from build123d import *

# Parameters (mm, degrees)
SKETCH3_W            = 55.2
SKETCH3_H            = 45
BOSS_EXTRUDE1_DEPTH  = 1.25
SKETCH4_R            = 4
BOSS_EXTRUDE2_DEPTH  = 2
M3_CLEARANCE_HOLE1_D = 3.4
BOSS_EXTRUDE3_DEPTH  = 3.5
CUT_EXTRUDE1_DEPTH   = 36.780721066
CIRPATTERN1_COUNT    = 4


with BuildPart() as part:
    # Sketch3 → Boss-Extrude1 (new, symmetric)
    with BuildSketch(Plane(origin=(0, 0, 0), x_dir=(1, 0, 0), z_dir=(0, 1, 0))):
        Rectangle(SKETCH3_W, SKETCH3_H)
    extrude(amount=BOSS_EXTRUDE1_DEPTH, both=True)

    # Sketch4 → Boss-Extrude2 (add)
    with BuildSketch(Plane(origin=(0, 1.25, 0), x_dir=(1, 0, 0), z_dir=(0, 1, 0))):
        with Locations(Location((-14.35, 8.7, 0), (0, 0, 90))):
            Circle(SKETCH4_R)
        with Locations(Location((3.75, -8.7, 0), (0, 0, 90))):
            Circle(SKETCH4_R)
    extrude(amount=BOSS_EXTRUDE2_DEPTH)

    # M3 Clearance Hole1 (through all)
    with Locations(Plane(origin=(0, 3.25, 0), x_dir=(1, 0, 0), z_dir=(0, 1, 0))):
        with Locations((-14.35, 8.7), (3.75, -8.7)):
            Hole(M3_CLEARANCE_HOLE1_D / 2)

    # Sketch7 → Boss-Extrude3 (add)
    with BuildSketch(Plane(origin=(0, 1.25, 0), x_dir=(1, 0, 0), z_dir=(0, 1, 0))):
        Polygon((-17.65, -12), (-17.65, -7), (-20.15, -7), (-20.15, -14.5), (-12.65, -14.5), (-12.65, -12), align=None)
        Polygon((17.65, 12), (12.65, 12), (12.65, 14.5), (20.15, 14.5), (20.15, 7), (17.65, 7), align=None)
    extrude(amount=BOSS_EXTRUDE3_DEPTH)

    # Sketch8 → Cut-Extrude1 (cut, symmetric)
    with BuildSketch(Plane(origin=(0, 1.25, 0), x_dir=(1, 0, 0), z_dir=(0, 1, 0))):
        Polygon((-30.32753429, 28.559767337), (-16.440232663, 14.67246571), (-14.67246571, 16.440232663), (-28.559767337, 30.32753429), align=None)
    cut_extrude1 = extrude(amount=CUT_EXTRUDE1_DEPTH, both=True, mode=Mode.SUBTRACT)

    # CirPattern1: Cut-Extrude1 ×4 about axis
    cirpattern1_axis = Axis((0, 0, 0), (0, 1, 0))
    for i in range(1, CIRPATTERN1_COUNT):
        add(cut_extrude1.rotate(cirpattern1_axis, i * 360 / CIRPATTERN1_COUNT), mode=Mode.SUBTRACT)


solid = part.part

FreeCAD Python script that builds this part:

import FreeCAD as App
import Part
import Sketcher

V = App.Vector
Q = App.Units.Quantity


def add_polygon(sketch, points):
    """Adds a closed chain of lines whose ends are joined by coincident constraints."""
    first, n = sketch.GeometryCount, len(points)
    for a, b in zip(points, points[1:] + points[:1]):
        sketch.addGeometry(Part.LineSegment(App.Vector(*a, 0), App.Vector(*b, 0)), False)
    for i in range(n):
        sketch.addConstraint(Sketcher.Constraint("Coincident", first + i, 2, first + (i + 1) % n, 1))

doc = App.newDocument("Part")
body = doc.addObject("PartDesign::Body", "Body")

# Sketch on XZ plane
sketch1 = body.newObject("Sketcher::SketchObject", "Sketch")
sketch1.AttachmentSupport = (doc.getObject("XZ_Plane"), [""])
sketch1.MapMode = "FlatFace"
add_polygon(sketch1, [(-28, -22), (-28, 22), (28, 22), (28, -22)])  # lines 0-3
sketch1.addConstraint(Sketcher.Constraint("Vertical", 0))
sketch1.addConstraint(Sketcher.Constraint("Horizontal", 1))
sketch1.addConstraint(Sketcher.Constraint("Vertical", 2))
sketch1.addConstraint(Sketcher.Constraint("Horizontal", 3))
sketch1.addConstraint(Sketcher.Constraint("Symmetric", 0, 2, 2, 2, -1, 1))
sketch1.addConstraint(Sketcher.Constraint("DistanceY", 0, 1, 0, 2, Q("45 mm")))
sketch1.addConstraint(Sketcher.Constraint("DistanceX", 1, 1, 1, 2, Q("55.2 mm")))
pad1 = body.newObject("PartDesign::Pad", "Pad")
pad1.Profile = sketch1
pad1.Length = 2.5
pad1.Midplane = True

# Sketch on XZ plane
sketch2 = body.newObject("Sketcher::SketchObject", "Sketch001")
sketch2.AttachmentSupport = (doc.getObject("XZ_Plane"), [""])
sketch2.MapMode = "FlatFace"
sketch2.AttachmentOffset = App.Placement(V(0, 0, -1.25), App.Rotation())
sketch2.addGeometry(Part.Circle(V(-14.3, -8.7, 0), V(0, 0, 1), 4), False)
sketch2.addGeometry(Part.Circle(V(3.8, 8.7, 0), V(0, 0, 1), 4), False)
sketch2.addConstraint(Sketcher.Constraint("Equal", 0, 1))
sketch2.addConstraint(Sketcher.Constraint("Diameter", 0, Q("8 mm")))
sketch2.addConstraint(Sketcher.Constraint("DistanceY", 0, 3, -1, 1, Q("8.7 mm")))
sketch2.addConstraint(Sketcher.Constraint("DistanceY", -1, 1, 1, 3, Q("8.7 mm")))
sketch2.addConstraint(Sketcher.Constraint("DistanceX", 0, 3, 1, 3, Q("18.1 mm")))
sketch2.addConstraint(Sketcher.Constraint("DistanceX", 0, 3, -1, 1, Q("14.35 mm")))
pad2 = body.newObject("PartDesign::Pad", "Pad001")
pad2.Profile = sketch2
pad2.Length = 2
pad2.Reversed = True

# Sketch on XZ plane
sketch3 = body.newObject("Sketcher::SketchObject", "Sketch002")
sketch3.AttachmentSupport = (doc.getObject("XZ_Plane"), [""])
sketch3.MapMode = "FlatFace"
sketch3.AttachmentOffset = App.Placement(V(0, 0, -3.25), App.Rotation())
sketch3.addGeometry(Part.Circle(V(-14.3, -8.7, 0), V(0, 0, 1), 1.7), False)
sketch3.addGeometry(Part.Circle(V(3.8, 8.7, 0), V(0, 0, 1), 1.7), False)
sketch3.addConstraint(Sketcher.Constraint("Equal", 0, 1))
sketch3.addConstraint(Sketcher.Constraint("Diameter", 0, Q("3.4 mm")))
sketch3.addConstraint(Sketcher.Constraint("DistanceY", 0, 3, -1, 1, Q("8.7 mm")))
sketch3.addConstraint(Sketcher.Constraint("DistanceY", -1, 1, 1, 3, Q("8.7 mm")))
sketch3.addConstraint(Sketcher.Constraint("DistanceX", 0, 3, 1, 3, Q("18.1 mm")))
sketch3.addConstraint(Sketcher.Constraint("DistanceX", 0, 3, -1, 1, Q("14.35 mm")))
doc.recompute()
hole = body.newObject("PartDesign::Hole", "Hole")
hole.Profile = sketch3
hole.ThreadType = "None"
hole.Diameter = 3.4
hole.DepthType = "ThroughAll"
hole.Reversed = True

# Sketch on XZ plane
sketch4 = body.newObject("Sketcher::SketchObject", "Sketch003")
sketch4.AttachmentSupport = (doc.getObject("XZ_Plane"), [""])
sketch4.MapMode = "FlatFace"
sketch4.AttachmentOffset = App.Placement(V(0, 0, -1.25), App.Rotation())
add_polygon(sketch4, [(-17.6, 12), (-17.6, 7), (-20.1, 7), (-20.1, 14.5), (-12.7, 14.5), (-12.7, 12)])  # lines 0-5
add_polygon(sketch4, [(12.7, -12), (17.6, -12), (17.6, -7), (20.1, -7), (20.1, -14.5), (12.7, -14.5)])  # lines 6-11
sketch4.addConstraint(Sketcher.Constraint("Vertical", 0))
sketch4.addConstraint(Sketcher.Constraint("Horizontal", 1))
sketch4.addConstraint(Sketcher.Constraint("Vertical", 2))
sketch4.addConstraint(Sketcher.Constraint("Horizontal", 3))
sketch4.addConstraint(Sketcher.Constraint("Vertical", 4))
sketch4.addConstraint(Sketcher.Constraint("Horizontal", 5))
sketch4.addConstraint(Sketcher.Constraint("Horizontal", 6))
sketch4.addConstraint(Sketcher.Constraint("Vertical", 7))
sketch4.addConstraint(Sketcher.Constraint("Horizontal", 8))
sketch4.addConstraint(Sketcher.Constraint("Vertical", 9))
sketch4.addConstraint(Sketcher.Constraint("Horizontal", 10))
sketch4.addConstraint(Sketcher.Constraint("Vertical", 11))
sketch4.addConstraint(Sketcher.Constraint("Symmetric", 5, 2, 6, 2, -1, 1))
sketch4.addConstraint(Sketcher.Constraint("Symmetric", 1, 2, 8, 2, -1, 1))
sketch4.addConstraint(Sketcher.Constraint("Symmetric", 3, 2, 10, 2, -1, 1))
sketch4.addConstraint(Sketcher.Constraint("Equal", 6, 0))
sketch4.addConstraint(Sketcher.Constraint("Equal", 10, 2))
sketch4.addConstraint(Sketcher.Constraint("DistanceX", 5, 2, 5, 1, Q("5 mm")))
sketch4.addConstraint(Sketcher.Constraint("DistanceX", 1, 2, 1, 1, Q("2.5 mm")))
sketch4.addConstraint(Sketcher.Constraint("DistanceY", -1, 1, 0, 2, Q("7 mm")))
sketch4.addConstraint(Sketcher.Constraint("DistanceX", 4, 2, 6, 2, Q("30.3 mm")))
pad3 = body.newObject("PartDesign::Pad", "Pad002")
pad3.Profile = sketch4
pad3.Length = 3.5
pad3.Reversed = True

# Sketch on XZ plane
sketch5 = body.newObject("Sketcher::SketchObject", "Sketch004")
sketch5.AttachmentSupport = (doc.getObject("XZ_Plane"), [""])
sketch5.MapMode = "FlatFace"
sketch5.AttachmentOffset = App.Placement(V(0, 0, -1.25), App.Rotation())
add_polygon(sketch5, [(-30.3, -28.6), (-16.4, -14.7), (-14.7, -16.4), (-28.6, -30.3)])  # lines 0-3
sketch5.addConstraint(Sketcher.Constraint("Perpendicular", 0, 1))
sketch5.addConstraint(Sketcher.Constraint("Perpendicular", 1, 2))
sketch5.addConstraint(Sketcher.Constraint("Perpendicular", 2, 3))
sketch5.addConstraint(Sketcher.Constraint("Angle", 0, Q("45 deg")))
sketch5.addConstraint(Sketcher.Constraint("Distance", 1, Q("2.5 mm")))
sketch5.addConstraint(Sketcher.Constraint("DistanceX", 2, 2, 1, 2, Q("13.887302 mm")))
sketch5.addConstraint(Sketcher.Constraint("DistanceX", 0, 2, -1, 1, Q("16.440233 mm")))
sketch5.addConstraint(Sketcher.Constraint("DistanceY", 0, 2, -1, 1, Q("14.672466 mm")))
pocket1 = body.newObject("PartDesign::Pocket", "Pocket")
pocket1.Profile = sketch5
pocket1.Length = 73.561442
pocket1.Midplane = True
doc.recompute()

polarpattern = body.newObject("PartDesign::PolarPattern", "PolarPattern")
polarpattern.Originals = [pocket1]
polarpattern.Axis = (doc.getObject("Y_Axis"), [""])
polarpattern.Angle = 360
polarpattern.Occurrences = 4
body.Tip = polarpattern

doc.recompute()
